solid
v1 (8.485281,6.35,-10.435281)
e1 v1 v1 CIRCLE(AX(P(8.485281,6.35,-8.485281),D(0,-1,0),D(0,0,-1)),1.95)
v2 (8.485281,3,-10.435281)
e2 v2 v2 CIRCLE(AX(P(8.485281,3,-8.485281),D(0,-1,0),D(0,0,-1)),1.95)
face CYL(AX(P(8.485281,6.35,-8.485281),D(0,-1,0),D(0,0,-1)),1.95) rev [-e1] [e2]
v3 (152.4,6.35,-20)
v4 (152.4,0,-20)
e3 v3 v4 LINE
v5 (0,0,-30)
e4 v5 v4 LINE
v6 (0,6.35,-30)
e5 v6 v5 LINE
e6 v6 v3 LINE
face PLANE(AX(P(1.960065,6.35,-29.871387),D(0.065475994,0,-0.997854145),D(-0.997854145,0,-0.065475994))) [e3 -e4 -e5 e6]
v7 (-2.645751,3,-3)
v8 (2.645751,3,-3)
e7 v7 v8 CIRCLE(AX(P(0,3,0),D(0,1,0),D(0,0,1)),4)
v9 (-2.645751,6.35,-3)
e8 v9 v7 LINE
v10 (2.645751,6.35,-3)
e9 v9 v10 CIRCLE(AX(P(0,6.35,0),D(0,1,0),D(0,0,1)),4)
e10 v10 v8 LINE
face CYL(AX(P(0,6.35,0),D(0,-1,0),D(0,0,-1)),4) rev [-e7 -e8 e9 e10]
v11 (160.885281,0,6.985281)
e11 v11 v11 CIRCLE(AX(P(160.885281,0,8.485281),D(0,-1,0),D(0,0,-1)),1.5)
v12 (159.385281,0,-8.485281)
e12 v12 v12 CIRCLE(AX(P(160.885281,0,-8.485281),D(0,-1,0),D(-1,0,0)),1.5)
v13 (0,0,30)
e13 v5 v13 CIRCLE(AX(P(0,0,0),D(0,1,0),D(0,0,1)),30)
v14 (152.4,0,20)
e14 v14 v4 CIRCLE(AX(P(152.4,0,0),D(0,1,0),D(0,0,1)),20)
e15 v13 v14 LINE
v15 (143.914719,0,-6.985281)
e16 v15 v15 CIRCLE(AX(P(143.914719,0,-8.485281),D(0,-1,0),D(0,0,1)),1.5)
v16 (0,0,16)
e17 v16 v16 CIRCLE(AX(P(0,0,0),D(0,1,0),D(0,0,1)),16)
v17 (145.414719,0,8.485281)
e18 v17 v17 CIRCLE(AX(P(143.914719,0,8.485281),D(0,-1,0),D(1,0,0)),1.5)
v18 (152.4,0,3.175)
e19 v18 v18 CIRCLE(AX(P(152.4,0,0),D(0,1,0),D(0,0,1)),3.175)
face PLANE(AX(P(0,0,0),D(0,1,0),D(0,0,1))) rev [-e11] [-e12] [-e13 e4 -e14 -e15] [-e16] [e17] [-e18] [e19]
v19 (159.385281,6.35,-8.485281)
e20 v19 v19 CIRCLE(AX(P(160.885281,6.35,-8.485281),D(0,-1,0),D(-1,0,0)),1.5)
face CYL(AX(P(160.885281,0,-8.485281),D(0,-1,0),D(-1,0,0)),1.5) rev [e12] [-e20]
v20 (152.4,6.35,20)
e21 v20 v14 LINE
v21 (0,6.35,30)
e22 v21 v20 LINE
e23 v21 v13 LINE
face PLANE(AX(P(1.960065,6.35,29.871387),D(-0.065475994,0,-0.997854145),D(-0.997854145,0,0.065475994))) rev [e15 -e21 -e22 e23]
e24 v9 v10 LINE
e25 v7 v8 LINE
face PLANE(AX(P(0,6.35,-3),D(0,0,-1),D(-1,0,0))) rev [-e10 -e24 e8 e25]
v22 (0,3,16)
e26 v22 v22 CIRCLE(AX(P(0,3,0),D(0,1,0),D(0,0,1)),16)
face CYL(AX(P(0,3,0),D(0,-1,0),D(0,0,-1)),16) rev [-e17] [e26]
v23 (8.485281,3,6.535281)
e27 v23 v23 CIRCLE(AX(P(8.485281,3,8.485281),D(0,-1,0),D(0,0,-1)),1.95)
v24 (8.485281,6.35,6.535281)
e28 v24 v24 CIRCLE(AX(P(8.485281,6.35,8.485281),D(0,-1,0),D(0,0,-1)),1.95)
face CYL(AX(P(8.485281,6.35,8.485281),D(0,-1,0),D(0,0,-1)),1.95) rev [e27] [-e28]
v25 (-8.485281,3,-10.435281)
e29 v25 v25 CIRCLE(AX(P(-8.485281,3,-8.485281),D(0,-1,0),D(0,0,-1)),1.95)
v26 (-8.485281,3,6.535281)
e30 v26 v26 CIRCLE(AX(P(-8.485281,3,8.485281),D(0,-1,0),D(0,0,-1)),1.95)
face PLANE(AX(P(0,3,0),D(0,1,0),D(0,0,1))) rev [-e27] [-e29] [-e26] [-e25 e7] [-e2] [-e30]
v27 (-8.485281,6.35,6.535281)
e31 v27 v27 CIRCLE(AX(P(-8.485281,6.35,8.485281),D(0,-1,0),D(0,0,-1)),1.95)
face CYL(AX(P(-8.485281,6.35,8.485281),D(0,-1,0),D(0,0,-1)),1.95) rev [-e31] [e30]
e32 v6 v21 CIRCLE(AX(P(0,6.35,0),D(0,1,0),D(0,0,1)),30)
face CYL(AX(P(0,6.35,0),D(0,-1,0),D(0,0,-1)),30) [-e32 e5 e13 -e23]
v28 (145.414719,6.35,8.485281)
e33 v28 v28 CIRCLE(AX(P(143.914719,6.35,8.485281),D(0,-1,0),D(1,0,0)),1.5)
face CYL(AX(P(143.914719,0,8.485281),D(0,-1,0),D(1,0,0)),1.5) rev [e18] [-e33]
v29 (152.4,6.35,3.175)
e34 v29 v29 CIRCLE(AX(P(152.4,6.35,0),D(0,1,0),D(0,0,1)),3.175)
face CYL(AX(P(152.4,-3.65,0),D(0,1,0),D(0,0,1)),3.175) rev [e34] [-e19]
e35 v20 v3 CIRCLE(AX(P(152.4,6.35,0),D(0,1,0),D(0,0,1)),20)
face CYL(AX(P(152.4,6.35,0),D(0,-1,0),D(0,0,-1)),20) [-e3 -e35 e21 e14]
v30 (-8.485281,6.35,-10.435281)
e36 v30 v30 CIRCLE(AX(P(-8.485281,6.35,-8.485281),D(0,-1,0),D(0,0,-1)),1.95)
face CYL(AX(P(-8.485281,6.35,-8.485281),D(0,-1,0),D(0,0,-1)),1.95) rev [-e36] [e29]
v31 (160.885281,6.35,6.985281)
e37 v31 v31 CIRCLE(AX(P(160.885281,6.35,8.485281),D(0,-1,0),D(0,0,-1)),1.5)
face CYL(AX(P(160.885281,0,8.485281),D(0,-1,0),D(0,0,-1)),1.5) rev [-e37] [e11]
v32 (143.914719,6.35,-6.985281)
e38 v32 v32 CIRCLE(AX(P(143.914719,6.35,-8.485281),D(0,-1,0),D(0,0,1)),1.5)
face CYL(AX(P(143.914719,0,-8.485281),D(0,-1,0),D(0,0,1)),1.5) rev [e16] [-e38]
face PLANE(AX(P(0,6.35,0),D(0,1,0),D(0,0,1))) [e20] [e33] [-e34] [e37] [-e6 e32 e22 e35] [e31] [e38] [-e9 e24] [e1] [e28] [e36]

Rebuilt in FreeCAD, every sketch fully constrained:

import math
import FreeCAD as App
import Part
import Sketcher
Q = App.Units.Quantity

doc = App.newDocument("Part")
params = doc.addObject("Spreadsheet::Sheet", "Params")
for row, (alias, value) in enumerate([
    ("sketch1_radius", "30 mm"),
    ("sketch1_radius2", "20 mm"),
    ("sketch1_radius3", "4 mm"),
    ("pad1_length", "6.35 mm"),
    ("sketch2_diameter", "6.35 mm"),
    ("pocket1_length", "10 mm"),
    ("sketch3_diameter", "32 mm"),
    ("pocket2_length", "3 mm"),
    ("sketch4_diameter", "3.9 mm"),
    ("sketch5_diameter", "3 mm"),
    ("hole_diameter", "3 mm"),
], start=1):
    params.set(f"A{row}", alias)
    params.set(f"B{row}", "=" + value)
    params.setAlias(f"B{row}", alias)

body = doc.addObject("PartDesign::Body", "Body")

sketch1 = doc.addObject("Sketcher::SketchObject", "Sketch")
body.addObject(sketch1)
sketch1.AttachmentSupport = (doc.XZ_Plane, [""])
sketch1.MapMode = "FlatFace"
sketch1.addGeometry(Part.LineSegment(App.Vector(152.4, -20, 0), App.Vector(3.9, -29.7, 0)), False)
sketch1.addGeometry(Part.LineSegment(App.Vector(3.9, -29.7, 0), App.Vector(0, -30, 0)), False)
sketch1.addGeometry(Part.ArcOfCircle(Part.Circle(App.Vector(0, 0, 0), App.Vector(0, 0, 1), 30), math.radians(90), math.radians(270)), False)
sketch1.addGeometry(Part.LineSegment(App.Vector(0, 30, 0), App.Vector(3.9, 29.7, 0)), False)
sketch1.addGeometry(Part.LineSegment(App.Vector(3.9, 29.7, 0), App.Vector(152.4, 20, 0)), False)
sketch1.addGeometry(Part.ArcOfCircle(Part.Circle(App.Vector(152.4, 0, 0), App.Vector(0, 0, 1), 20), math.radians(-90), math.radians(90)), False)
sketch1.addGeometry(Part.ArcOfCircle(Part.Circle(App.Vector(0, 0, 0), App.Vector(0, 0, 1), 4), math.radians(-49), math.radians(229)), False)
sketch1.addGeometry(Part.LineSegment(App.Vector(-2.6, -3, 0), App.Vector(2.6, -3, 0)), False)
sketch1.addConstraint(Sketcher.Constraint("Coincident", 0, 2, 1, 1))
sketch1.addConstraint(Sketcher.Constraint("Coincident", 1, 2, 2, 2))
sketch1.addConstraint(Sketcher.Constraint("Coincident", 2, 1, 3, 1))
sketch1.addConstraint(Sketcher.Constraint("Coincident", 3, 2, 4, 1))
sketch1.addConstraint(Sketcher.Constraint("Coincident", 4, 2, 5, 2))
sketch1.addConstraint(Sketcher.Constraint("Coincident", 5, 1, 0, 1))
sketch1.addConstraint(Sketcher.Constraint("Coincident", 6, 1, 7, 2))
sketch1.addConstraint(Sketcher.Constraint("Coincident", 7, 1, 6, 2))
sketch1.addConstraint(Sketcher.Constraint("Horizontal", 7))
sketch1.addConstraint(Sketcher.Constraint("Coincident", 2, 3, -1, 1))
sketch1.addConstraint(Sketcher.Constraint("Coincident", 6, 3, -1, 1))
sketch1.addConstraint(Sketcher.Constraint("Symmetric", 0, 2, 3, 2, -1))
sketch1.addConstraint(Sketcher.Constraint("Symmetric", 4, 2, 5, 1, -1))
sketch1.addConstraint(Sketcher.Constraint("PointOnObject", 1, 2, -2))
sketch1.addConstraint(Sketcher.Constraint("PointOnObject", 2, 1, -2))
sketch1.addConstraint(Sketcher.Constraint("Parallel", 0, 1))
sketch1.addConstraint(Sketcher.Constraint("Vertical", 5, 3, 4, 2))
sketch1.addConstraint(Sketcher.Constraint("Radius", 2, Q("30 mm")))
sketch1.addConstraint(Sketcher.Constraint("Radius", 5, Q("20 mm")))
sketch1.addConstraint(Sketcher.Constraint("Radius", 6, Q("4 mm")))
sketch1.addConstraint(Sketcher.Constraint("DistanceY", 6, 1, -1, 1, Q("3 mm")))
sketch1.addConstraint(Sketcher.Constraint("DistanceX", -1, 1, 5, 3, Q("152.4 mm")))
sketch1.addConstraint(Sketcher.Constraint("Distance", 0, Q("148.799172 mm")))
sketch1.setExpression("Constraints[17]", "Params.sketch1_radius")
sketch1.setExpression("Constraints[18]", "Params.sketch1_radius2")
sketch1.setExpression("Constraints[19]", "Params.sketch1_radius3")
pad1 = doc.addObject("PartDesign::Pad", "Pad")
body.addObject(pad1)
pad1.Profile = sketch1
pad1.setExpression("Length", "Params.pad1_length")
pad1.Reversed = True

sketch2 = doc.addObject("Sketcher::SketchObject", "Sketch001")
body.addObject(sketch2)
sketch2.AttachmentSupport = (doc.XZ_Plane, [""])
sketch2.MapMode = "FlatFace"
sketch2.AttachmentOffset = App.Placement(App.Vector(0, 0, -6.35), App.Rotation())
sketch2.addGeometry(Part.Circle(App.Vector(152.4, 0, 0), App.Vector(0, 0, 1), 3.2), False)
sketch2.addConstraint(Sketcher.Constraint("PointOnObject", 0, 3, -1))
sketch2.addConstraint(Sketcher.Constraint("Diameter", 0, Q("6.35 mm")))
sketch2.addConstraint(Sketcher.Constraint("DistanceX", -1, 1, 0, 3, Q("152.4 mm")))
sketch2.setExpression("Constraints[1]", "Params.sketch2_diameter")
pocket1 = doc.addObject("PartDesign::Pocket", "Pocket")
body.addObject(pocket1)
pocket1.Profile = sketch2
pocket1.setExpression("Length", "Params.pocket1_length")
pocket1.Reversed = True

sketch3 = doc.addObject("Sketcher::SketchObject", "Sketch002")
body.addObject(sketch3)
sketch3.AttachmentSupport = (doc.XZ_Plane, [""])
sketch3.MapMode = "FlatFace"
sketch3.addGeometry(Part.Circle(App.Vector(0, 0, 0), App.Vector(0, 0, 1), 16), False)
sketch3.addConstraint(Sketcher.Constraint("Coincident", 0, 3, -1, 1))
sketch3.addConstraint(Sketcher.Constraint("Diameter", 0, Q("32 mm")))
sketch3.setExpression("Constraints[1]", "Params.sketch3_diameter")
pocket2 = doc.addObject("PartDesign::Pocket", "Pocket001")
body.addObject(pocket2)
pocket2.Profile = sketch3
pocket2.setExpression("Length", "Params.pocket2_length")

sketch4 = doc.addObject("Sketcher::SketchObject", "Sketch003")
body.addObject(sketch4)
sketch4.AttachmentSupport = (doc.XZ_Plane, [""])
sketch4.MapMode = "FlatFace"
sketch4.AttachmentOffset = App.Placement(App.Vector(0, 0, -3), App.Rotation())
sketch4.addGeometry(Part.Circle(App.Vector(8.5, -8.5, 0), App.Vector(0, 0, 1), 1.9), False)
sketch4.addGeometry(Part.Circle(App.Vector(-8.5, -8.5, 0), App.Vector(0, 0, 1), 1.9), False)
sketch4.addGeometry(Part.Circle(App.Vector(-8.5, 8.5, 0), App.Vector(0, 0, 1), 1.9), False)
sketch4.addGeometry(Part.Circle(App.Vector(8.5, 8.5, 0), App.Vector(0, 0, 1), 1.9), False)
sketch4.addConstraint(Sketcher.Constraint("Equal", 0, 1))
sketch4.addConstraint(Sketcher.Constraint("Equal", 1, 2))
sketch4.addConstraint(Sketcher.Constraint("Equal", 2, 3))
sketch4.addConstraint(Sketcher.Constraint("Symmetric", 0, 3, 2, 3, -1, 1))
sketch4.addConstraint(Sketcher.Constraint("Symmetric", 1, 3, 3, 3, -1, 1))
sketch4.addConstraint(Sketcher.Constraint("Symmetric", 0, 3, 1, 3, -2))
sketch4.addConstraint(Sketcher.Constraint("Diameter", 0, Q("3.9 mm")))
sketch4.addConstraint(Sketcher.Constraint("DistanceX", -1, 1, 0, 3, Q("8.485281 mm")))
sketch4.addConstraint(Sketcher.Constraint("DistanceY", 0, 3, -1, 1, Q("8.485281 mm")))
sketch4.setExpression("Constraints[6]", "Params.sketch4_diameter")
pocket3 = doc.addObject("PartDesign::Pocket", "Pocket002")
body.addObject(pocket3)
pocket3.Profile = sketch4
pocket3.Type = "ThroughAll"

sketch5 = doc.addObject("Sketcher::SketchObject", "Sketch004")
body.addObject(sketch5)
sketch5.AttachmentSupport = (doc.XZ_Plane, [""])
sketch5.MapMode = "FlatFace"
sketch5.addGeometry(Part.Circle(App.Vector(160.9, 8.5, 0), App.Vector(0, 0, 1), 1.5), False)
sketch5.addConstraint(Sketcher.Constraint("Diameter", 0, Q("3 mm")))
sketch5.addConstraint(Sketcher.Constraint("DistanceX", -1, 1, 0, 3, Q("160.885281 mm")))
sketch5.addConstraint(Sketcher.Constraint("DistanceY", -1, 1, 0, 3, Q("8.485281 mm")))
sketch5.setExpression("Constraints[0]", "Params.sketch5_diameter")
doc.recompute()
hole = doc.addObject("PartDesign::Hole", "Hole")
body.addObject(hole)
hole.Profile = sketch5
hole.ThreadType = "None"
hole.setExpression("Diameter", "Params.hole_diameter")
hole.DepthType = "ThroughAll"
doc.recompute()

datumline = doc.addObject("PartDesign::Line", "DatumLine")
body.addObject(datumline)
datumline.Placement = App.Placement(App.Vector(152.4, 0, 0), App.Rotation(App.Vector(0, 0, 1), App.Vector(0, 1, 0)))
polarpattern = doc.addObject("PartDesign::PolarPattern", "PolarPattern")
body.addObject(polarpattern)
polarpattern.Originals = [hole]
polarpattern.Axis = (datumline, [""])
polarpattern.Angle = 360
polarpattern.Occurrences = 4
body.Tip = polarpattern

doc.recompute()
